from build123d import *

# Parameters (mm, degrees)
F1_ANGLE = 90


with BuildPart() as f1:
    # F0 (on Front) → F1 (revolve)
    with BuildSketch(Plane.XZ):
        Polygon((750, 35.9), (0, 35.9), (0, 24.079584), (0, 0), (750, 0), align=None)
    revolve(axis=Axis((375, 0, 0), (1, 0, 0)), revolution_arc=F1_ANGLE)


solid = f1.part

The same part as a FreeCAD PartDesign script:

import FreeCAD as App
import Part
import Sketcher
from FreeCAD import Vector
Q = App.Units.Quantity

doc = App.newDocument("Part")
body = doc.addObject("PartDesign::Body", "Body")

sketch1 = body.newObject("Sketcher::SketchObject", "Sketch")
sketch1.AttachmentSupport = (doc.getObject("XZ_Plane"), [""])
sketch1.MapMode = "FlatFace"
sketch1.addGeometry([
    Part.LineSegment(Vector(750, 35.9, 0), Vector(0, 35.9, 0)),
    Part.LineSegment(Vector(0, 35.9, 0), Vector(0, 0, 0)),
    Part.LineSegment(Vector(0, 0, 0), Vector(750, 0, 0)),
    Part.LineSegment(Vector(750, 0, 0), Vector(750, 35.9, 0)),
], False)
sketch1.addConstraint([
    Sketcher.Constraint("Coincident", 0, 2, 1, 1),
    Sketcher.Constraint("Coincident", 1, 2, 2, 1),
    Sketcher.Constraint("Coincident", 2, 2, 3, 1),
    Sketcher.Constraint("Coincident", 3, 2, 0, 1),
    Sketcher.Constraint("Horizontal", 0),
    Sketcher.Constraint("Vertical", 1),
    Sketcher.Constraint("Horizontal", 2),
    Sketcher.Constraint("Vertical", 3),
    Sketcher.Constraint("Coincident", 1, 2, -1, 1),
    Sketcher.Constraint("DistanceX", 0, 2, 0, 1, Q("750 mm")),
    Sketcher.Constraint("DistanceY", 1, 2, 1, 1, Q("35.9 mm")),
])
revolution = body.newObject("PartDesign::Revolution", "Revolution")
revolution.Profile = sketch1
revolution.ReferenceAxis = (sketch1, ["H_Axis"])
revolution.Angle = 90

doc.recompute()
